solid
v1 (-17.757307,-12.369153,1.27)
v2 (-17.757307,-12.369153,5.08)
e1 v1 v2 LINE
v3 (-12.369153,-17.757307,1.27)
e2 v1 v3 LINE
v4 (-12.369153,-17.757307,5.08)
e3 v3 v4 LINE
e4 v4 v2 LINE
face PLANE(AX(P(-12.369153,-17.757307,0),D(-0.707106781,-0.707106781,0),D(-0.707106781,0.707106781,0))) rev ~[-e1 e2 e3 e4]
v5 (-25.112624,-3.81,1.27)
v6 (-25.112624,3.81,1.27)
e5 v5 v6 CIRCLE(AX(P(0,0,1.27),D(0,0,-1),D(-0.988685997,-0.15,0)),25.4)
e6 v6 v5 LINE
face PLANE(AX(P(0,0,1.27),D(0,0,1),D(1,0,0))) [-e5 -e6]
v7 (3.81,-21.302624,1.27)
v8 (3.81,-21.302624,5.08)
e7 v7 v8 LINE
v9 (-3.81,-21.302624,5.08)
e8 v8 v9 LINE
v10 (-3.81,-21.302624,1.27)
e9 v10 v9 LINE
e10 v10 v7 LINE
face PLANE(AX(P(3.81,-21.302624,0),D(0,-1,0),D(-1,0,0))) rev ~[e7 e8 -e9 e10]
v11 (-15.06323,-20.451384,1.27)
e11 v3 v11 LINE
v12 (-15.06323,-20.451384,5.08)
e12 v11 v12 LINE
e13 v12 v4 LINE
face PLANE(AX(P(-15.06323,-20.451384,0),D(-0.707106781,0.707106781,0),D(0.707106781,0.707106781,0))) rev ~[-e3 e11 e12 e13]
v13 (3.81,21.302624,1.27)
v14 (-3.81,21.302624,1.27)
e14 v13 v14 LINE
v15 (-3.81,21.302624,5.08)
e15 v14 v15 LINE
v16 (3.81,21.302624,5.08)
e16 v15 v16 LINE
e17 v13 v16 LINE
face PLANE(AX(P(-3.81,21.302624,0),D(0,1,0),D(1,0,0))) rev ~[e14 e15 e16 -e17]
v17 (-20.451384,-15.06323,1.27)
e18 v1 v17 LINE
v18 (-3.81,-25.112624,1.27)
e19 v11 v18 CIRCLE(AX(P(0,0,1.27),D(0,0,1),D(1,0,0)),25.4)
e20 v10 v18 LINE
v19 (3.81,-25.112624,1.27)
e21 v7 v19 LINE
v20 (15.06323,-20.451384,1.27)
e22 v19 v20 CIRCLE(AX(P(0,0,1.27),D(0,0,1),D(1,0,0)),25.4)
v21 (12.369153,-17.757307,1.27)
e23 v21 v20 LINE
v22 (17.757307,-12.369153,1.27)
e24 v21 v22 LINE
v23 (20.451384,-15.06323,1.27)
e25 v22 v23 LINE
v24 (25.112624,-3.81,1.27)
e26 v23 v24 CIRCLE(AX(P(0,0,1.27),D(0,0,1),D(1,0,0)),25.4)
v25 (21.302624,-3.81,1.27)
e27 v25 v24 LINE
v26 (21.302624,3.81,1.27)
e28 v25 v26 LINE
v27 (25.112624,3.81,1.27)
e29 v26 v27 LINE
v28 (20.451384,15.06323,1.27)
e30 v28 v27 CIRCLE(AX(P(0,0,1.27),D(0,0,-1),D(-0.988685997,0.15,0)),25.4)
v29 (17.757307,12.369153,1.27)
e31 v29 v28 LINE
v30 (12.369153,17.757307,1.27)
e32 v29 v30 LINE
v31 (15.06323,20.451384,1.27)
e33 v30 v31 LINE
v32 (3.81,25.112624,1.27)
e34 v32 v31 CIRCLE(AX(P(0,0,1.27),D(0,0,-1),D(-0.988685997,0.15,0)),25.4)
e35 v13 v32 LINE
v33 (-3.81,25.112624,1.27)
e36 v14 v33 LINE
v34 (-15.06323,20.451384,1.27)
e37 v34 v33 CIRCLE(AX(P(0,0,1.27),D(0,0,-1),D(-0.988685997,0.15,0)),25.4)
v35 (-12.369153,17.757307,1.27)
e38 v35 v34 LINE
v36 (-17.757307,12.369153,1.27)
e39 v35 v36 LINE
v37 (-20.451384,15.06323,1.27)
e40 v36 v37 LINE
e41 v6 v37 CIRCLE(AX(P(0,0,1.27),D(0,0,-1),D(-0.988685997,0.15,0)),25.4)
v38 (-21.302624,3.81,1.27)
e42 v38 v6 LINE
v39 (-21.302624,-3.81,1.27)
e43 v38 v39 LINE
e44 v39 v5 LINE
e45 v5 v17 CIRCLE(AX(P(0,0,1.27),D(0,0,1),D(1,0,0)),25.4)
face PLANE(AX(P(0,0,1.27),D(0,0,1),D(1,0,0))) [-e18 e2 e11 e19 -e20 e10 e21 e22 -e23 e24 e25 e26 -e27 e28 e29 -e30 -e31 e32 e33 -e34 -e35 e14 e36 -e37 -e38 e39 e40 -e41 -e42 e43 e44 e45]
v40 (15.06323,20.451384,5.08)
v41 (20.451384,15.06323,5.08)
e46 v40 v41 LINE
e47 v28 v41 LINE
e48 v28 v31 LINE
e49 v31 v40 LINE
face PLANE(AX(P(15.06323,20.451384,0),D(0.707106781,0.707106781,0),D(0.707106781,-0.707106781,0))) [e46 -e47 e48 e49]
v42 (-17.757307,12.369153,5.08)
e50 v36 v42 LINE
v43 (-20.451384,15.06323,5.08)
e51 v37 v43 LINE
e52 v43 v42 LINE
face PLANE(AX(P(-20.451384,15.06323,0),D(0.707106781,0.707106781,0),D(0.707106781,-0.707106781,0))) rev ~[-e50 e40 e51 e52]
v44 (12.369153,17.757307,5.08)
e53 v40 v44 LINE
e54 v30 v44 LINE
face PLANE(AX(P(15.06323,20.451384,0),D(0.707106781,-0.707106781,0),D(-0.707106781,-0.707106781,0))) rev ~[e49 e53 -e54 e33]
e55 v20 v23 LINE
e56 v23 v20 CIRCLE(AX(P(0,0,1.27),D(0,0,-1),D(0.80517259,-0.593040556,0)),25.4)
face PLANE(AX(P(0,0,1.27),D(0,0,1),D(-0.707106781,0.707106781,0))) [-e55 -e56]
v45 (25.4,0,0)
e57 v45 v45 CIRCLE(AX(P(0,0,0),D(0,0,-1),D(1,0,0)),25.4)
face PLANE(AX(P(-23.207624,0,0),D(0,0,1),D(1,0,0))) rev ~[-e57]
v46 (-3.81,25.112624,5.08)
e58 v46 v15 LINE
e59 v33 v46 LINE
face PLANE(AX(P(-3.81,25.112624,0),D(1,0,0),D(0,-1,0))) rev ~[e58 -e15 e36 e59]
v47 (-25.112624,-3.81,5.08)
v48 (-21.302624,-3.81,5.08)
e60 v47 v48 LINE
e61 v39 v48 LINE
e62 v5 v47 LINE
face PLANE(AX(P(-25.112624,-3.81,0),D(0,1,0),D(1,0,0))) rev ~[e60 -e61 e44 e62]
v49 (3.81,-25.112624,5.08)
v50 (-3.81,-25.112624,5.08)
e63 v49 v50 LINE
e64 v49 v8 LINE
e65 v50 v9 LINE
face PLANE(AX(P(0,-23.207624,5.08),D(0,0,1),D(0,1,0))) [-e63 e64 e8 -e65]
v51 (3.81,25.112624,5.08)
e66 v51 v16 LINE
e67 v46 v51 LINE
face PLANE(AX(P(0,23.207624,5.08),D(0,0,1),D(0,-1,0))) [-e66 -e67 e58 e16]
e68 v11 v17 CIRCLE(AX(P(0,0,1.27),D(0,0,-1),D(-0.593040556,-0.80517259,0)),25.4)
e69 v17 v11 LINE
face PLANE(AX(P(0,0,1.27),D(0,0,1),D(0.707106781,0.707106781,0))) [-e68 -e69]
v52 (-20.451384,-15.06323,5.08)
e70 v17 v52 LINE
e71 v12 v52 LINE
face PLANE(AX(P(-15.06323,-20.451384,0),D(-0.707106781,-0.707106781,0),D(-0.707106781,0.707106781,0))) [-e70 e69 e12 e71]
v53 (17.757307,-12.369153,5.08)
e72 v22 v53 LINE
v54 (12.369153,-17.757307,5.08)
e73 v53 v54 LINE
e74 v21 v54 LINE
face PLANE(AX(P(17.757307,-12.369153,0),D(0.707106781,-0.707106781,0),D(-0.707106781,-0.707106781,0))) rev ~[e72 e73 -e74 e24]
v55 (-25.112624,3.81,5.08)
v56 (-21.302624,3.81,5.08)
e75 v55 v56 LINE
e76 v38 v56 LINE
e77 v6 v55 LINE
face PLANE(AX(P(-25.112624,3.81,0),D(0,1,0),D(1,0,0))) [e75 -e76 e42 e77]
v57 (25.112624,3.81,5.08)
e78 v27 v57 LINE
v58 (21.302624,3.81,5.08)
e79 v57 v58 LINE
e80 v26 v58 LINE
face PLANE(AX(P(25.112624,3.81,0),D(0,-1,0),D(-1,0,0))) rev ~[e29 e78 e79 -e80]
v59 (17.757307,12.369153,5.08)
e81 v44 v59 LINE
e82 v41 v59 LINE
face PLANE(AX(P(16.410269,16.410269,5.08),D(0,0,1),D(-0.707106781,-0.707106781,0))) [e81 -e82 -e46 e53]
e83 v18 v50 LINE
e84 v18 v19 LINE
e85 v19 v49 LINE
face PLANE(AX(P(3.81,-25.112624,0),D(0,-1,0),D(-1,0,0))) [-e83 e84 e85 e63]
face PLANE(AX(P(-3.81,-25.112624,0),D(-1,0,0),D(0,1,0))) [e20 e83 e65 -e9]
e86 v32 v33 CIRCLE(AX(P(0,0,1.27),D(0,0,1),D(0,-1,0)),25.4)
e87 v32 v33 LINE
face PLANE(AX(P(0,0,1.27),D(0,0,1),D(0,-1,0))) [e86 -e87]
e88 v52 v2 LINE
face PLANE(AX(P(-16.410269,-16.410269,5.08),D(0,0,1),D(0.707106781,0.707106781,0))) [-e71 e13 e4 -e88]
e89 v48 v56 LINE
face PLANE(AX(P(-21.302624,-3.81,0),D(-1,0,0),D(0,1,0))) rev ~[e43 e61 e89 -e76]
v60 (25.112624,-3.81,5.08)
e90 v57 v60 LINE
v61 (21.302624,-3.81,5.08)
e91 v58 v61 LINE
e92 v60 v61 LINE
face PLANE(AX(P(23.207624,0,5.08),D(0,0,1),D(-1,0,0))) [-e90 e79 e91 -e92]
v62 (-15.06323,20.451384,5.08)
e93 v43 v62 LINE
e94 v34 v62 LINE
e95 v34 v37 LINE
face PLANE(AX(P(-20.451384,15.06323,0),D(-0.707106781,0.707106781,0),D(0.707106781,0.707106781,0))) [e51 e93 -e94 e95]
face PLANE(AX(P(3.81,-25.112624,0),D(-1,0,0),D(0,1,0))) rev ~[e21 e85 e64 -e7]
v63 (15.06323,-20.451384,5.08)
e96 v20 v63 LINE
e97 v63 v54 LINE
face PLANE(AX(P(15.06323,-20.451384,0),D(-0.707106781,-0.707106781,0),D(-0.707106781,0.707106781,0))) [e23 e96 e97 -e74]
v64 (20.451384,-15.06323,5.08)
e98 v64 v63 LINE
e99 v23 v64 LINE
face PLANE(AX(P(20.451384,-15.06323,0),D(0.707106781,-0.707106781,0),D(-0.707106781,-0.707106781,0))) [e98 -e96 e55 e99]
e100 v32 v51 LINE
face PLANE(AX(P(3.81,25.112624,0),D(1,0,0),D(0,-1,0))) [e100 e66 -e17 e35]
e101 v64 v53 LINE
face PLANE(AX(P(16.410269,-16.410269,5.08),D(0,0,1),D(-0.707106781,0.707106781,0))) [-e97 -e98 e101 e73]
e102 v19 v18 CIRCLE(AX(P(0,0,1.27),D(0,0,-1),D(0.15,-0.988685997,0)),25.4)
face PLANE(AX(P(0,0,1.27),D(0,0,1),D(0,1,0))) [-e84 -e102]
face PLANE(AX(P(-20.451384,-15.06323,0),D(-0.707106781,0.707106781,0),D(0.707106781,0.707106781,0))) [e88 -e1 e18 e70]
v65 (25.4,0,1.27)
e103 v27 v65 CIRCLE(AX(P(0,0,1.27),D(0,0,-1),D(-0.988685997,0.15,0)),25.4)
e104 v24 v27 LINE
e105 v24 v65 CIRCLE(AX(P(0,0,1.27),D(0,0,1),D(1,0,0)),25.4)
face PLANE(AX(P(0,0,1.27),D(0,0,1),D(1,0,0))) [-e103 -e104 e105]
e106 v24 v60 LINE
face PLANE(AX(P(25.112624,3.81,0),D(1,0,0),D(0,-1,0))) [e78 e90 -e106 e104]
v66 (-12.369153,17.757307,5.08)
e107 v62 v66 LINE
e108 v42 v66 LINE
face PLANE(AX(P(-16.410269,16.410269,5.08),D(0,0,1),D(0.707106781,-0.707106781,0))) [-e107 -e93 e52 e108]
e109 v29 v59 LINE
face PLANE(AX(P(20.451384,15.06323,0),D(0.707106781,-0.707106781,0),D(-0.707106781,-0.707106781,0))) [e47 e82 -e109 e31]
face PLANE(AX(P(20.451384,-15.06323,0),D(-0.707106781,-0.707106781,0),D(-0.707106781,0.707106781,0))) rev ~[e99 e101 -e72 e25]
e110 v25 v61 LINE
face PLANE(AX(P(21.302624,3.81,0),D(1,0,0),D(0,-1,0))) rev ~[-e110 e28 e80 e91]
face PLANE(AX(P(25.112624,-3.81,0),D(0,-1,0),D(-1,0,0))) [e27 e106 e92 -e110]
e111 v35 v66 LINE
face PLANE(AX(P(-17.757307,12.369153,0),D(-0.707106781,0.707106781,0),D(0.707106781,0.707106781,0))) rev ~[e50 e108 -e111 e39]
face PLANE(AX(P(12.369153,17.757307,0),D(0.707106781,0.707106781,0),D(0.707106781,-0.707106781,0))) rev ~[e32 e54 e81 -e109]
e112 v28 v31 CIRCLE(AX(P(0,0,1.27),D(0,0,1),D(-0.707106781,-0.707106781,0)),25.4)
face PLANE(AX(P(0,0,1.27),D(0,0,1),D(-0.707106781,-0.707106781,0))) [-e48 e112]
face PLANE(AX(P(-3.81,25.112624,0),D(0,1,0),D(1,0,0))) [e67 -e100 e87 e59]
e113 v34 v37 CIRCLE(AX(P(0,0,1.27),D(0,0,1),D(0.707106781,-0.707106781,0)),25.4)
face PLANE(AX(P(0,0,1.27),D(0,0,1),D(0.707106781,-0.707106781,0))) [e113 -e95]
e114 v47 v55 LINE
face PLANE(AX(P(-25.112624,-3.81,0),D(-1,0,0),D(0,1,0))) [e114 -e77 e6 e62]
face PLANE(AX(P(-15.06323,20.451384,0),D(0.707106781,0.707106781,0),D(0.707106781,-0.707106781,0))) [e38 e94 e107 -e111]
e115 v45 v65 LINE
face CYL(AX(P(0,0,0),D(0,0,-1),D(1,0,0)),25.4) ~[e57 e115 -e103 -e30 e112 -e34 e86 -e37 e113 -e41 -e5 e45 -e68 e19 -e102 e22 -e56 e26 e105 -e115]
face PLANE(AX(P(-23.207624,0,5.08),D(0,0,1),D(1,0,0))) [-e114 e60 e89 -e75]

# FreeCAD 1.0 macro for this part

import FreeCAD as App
import Part
import Sketcher
Q = App.Units.Quantity

doc = App.newDocument("Part")
body = doc.addObject("PartDesign::Body", "Body")

sketch1 = body.newObject("Sketcher::SketchObject", "Sketch")
sketch1.AttachmentSupport = (doc.getObject("XY_Plane"), [""])
sketch1.MapMode = "FlatFace"
sketch1.addGeometry(Part.Circle(App.Vector(0, 0, 0), App.Vector(0, 0, 1), 25), False)
sketch1.addConstraint([
    Sketcher.Constraint("Coincident", 0, 3, -1, 1),
    Sketcher.Constraint("Diameter", 0, Q("2 in")),
])
pad1 = body.newObject("PartDesign::Pad", "Pad")
pad1.Profile = sketch1
pad1.Length = Q("0.05 in")

sketch2 = body.newObject("Sketcher::SketchObject", "Sketch001")
sketch2.AttachmentSupport = (doc.getObject("XY_Plane"), [""])
sketch2.MapMode = "FlatFace"
sketch2.addGeometry([
    Part.LineSegment(App.Vector(-25.1, 3.8, 0), App.Vector(-25.1, -3.8, 0)),
    Part.LineSegment(App.Vector(-25.1, -3.8, 0), App.Vector(-21.3, -3.8, 0)),
    Part.LineSegment(App.Vector(-21.3, -3.8, 0), App.Vector(-21.3, 3.8, 0)),
    Part.LineSegment(App.Vector(-21.3, 3.8, 0), App.Vector(-25.1, 3.8, 0)),
], False)
sketch2.addConstraint([
    Sketcher.Constraint("Coincident", 0, 2, 1, 1),
    Sketcher.Constraint("Coincident", 1, 2, 2, 1),
    Sketcher.Constraint("Coincident", 2, 2, 3, 1),
    Sketcher.Constraint("Coincident", 3, 2, 0, 1),
    Sketcher.Constraint("Vertical", 0),
    Sketcher.Constraint("Horizontal", 1),
    Sketcher.Constraint("Vertical", 2),
    Sketcher.Constraint("Horizontal", 3),
    Sketcher.Constraint("DistanceY", 0, 2, 0, 1, Q("0.3 in")),
    Sketcher.Constraint("DistanceX", 1, 1, 1, 2, Q("0.15 in")),
    Sketcher.Constraint("DistanceY", 0, 2, -1, 1, Q("0.15 in")),
    Sketcher.Constraint("DistanceX", 0, 2, -1, 1, 25.112624),
])
pad2 = body.newObject("PartDesign::Pad", "Pad001")
pad2.Profile = sketch2
pad2.Length = Q("0.2 in")
body2 = doc.addObject("PartDesign::Body", "Body001")
doc.recompute()

body2.BaseFeature = body
doc.recompute()

body3 = doc.addObject("PartDesign::Body", "Body002")
body3.BaseFeature = body
body3.Placement = App.Placement(App.Vector(0, 0, 0), App.Rotation(App.Vector(0, 0, 1), 45))
boolean = body2.newObject("PartDesign::Boolean", "Boolean")
boolean.Type = "Fuse"
boolean.addObjects([body3])
doc.recompute()

body4 = doc.addObject("PartDesign::Body", "Body003")
body4.BaseFeature = body
body4.Placement = App.Placement(App.Vector(0, 0, 0), App.Rotation(App.Vector(0, 0, 1), 90))
boolean2 = body2.newObject("PartDesign::Boolean", "Boolean001")
boolean2.Type = "Fuse"
boolean2.addObjects([body4])
doc.recompute()

body5 = doc.addObject("PartDesign::Body", "Body004")
body5.BaseFeature = body
body5.Placement = App.Placement(App.Vector(0, 0, 0), App.Rotation(App.Vector(0, 0, 1), 135))
boolean3 = body2.newObject("PartDesign::Boolean", "Boolean002")
boolean3.Type = "Fuse"
boolean3.addObjects([body5])
doc.recompute()

body6 = doc.addObject("PartDesign::Body", "Body005")
body6.BaseFeature = body
body6.Placement = App.Placement(App.Vector(0, 0, 0), App.Rotation(App.Vector(0, 0, 1), 180))
boolean4 = body2.newObject("PartDesign::Boolean", "Boolean003")
boolean4.Type = "Fuse"
boolean4.addObjects([body6])
doc.recompute()

body7 = doc.addObject("PartDesign::Body", "Body006")
body7.BaseFeature = body
body7.Placement = App.Placement(App.Vector(0, 0, 0), App.Rotation(App.Vector(0, 0, 1), 225))
boolean5 = body2.newObject("PartDesign::Boolean", "Boolean004")
boolean5.Type = "Fuse"
boolean5.addObjects([body7])
doc.recompute()

body8 = doc.addObject("PartDesign::Body", "Body007")
body8.BaseFeature = body
body8.Placement = App.Placement(App.Vector(0, 0, 0), App.Rotation(App.Vector(0, 0, 1), 270))
boolean6 = body2.newObject("PartDesign::Boolean", "Boolean005")
boolean6.Type = "Fuse"
boolean6.addObjects([body8])
doc.recompute()

body.Placement = App.Placement(App.Vector(0, 0, 0), App.Rotation(App.Vector(0, 0, 1), 315))
boolean7 = body2.newObject("PartDesign::Boolean", "Boolean006")
boolean7.Type = "Fuse"
boolean7.addObjects([body])

doc.recompute()
